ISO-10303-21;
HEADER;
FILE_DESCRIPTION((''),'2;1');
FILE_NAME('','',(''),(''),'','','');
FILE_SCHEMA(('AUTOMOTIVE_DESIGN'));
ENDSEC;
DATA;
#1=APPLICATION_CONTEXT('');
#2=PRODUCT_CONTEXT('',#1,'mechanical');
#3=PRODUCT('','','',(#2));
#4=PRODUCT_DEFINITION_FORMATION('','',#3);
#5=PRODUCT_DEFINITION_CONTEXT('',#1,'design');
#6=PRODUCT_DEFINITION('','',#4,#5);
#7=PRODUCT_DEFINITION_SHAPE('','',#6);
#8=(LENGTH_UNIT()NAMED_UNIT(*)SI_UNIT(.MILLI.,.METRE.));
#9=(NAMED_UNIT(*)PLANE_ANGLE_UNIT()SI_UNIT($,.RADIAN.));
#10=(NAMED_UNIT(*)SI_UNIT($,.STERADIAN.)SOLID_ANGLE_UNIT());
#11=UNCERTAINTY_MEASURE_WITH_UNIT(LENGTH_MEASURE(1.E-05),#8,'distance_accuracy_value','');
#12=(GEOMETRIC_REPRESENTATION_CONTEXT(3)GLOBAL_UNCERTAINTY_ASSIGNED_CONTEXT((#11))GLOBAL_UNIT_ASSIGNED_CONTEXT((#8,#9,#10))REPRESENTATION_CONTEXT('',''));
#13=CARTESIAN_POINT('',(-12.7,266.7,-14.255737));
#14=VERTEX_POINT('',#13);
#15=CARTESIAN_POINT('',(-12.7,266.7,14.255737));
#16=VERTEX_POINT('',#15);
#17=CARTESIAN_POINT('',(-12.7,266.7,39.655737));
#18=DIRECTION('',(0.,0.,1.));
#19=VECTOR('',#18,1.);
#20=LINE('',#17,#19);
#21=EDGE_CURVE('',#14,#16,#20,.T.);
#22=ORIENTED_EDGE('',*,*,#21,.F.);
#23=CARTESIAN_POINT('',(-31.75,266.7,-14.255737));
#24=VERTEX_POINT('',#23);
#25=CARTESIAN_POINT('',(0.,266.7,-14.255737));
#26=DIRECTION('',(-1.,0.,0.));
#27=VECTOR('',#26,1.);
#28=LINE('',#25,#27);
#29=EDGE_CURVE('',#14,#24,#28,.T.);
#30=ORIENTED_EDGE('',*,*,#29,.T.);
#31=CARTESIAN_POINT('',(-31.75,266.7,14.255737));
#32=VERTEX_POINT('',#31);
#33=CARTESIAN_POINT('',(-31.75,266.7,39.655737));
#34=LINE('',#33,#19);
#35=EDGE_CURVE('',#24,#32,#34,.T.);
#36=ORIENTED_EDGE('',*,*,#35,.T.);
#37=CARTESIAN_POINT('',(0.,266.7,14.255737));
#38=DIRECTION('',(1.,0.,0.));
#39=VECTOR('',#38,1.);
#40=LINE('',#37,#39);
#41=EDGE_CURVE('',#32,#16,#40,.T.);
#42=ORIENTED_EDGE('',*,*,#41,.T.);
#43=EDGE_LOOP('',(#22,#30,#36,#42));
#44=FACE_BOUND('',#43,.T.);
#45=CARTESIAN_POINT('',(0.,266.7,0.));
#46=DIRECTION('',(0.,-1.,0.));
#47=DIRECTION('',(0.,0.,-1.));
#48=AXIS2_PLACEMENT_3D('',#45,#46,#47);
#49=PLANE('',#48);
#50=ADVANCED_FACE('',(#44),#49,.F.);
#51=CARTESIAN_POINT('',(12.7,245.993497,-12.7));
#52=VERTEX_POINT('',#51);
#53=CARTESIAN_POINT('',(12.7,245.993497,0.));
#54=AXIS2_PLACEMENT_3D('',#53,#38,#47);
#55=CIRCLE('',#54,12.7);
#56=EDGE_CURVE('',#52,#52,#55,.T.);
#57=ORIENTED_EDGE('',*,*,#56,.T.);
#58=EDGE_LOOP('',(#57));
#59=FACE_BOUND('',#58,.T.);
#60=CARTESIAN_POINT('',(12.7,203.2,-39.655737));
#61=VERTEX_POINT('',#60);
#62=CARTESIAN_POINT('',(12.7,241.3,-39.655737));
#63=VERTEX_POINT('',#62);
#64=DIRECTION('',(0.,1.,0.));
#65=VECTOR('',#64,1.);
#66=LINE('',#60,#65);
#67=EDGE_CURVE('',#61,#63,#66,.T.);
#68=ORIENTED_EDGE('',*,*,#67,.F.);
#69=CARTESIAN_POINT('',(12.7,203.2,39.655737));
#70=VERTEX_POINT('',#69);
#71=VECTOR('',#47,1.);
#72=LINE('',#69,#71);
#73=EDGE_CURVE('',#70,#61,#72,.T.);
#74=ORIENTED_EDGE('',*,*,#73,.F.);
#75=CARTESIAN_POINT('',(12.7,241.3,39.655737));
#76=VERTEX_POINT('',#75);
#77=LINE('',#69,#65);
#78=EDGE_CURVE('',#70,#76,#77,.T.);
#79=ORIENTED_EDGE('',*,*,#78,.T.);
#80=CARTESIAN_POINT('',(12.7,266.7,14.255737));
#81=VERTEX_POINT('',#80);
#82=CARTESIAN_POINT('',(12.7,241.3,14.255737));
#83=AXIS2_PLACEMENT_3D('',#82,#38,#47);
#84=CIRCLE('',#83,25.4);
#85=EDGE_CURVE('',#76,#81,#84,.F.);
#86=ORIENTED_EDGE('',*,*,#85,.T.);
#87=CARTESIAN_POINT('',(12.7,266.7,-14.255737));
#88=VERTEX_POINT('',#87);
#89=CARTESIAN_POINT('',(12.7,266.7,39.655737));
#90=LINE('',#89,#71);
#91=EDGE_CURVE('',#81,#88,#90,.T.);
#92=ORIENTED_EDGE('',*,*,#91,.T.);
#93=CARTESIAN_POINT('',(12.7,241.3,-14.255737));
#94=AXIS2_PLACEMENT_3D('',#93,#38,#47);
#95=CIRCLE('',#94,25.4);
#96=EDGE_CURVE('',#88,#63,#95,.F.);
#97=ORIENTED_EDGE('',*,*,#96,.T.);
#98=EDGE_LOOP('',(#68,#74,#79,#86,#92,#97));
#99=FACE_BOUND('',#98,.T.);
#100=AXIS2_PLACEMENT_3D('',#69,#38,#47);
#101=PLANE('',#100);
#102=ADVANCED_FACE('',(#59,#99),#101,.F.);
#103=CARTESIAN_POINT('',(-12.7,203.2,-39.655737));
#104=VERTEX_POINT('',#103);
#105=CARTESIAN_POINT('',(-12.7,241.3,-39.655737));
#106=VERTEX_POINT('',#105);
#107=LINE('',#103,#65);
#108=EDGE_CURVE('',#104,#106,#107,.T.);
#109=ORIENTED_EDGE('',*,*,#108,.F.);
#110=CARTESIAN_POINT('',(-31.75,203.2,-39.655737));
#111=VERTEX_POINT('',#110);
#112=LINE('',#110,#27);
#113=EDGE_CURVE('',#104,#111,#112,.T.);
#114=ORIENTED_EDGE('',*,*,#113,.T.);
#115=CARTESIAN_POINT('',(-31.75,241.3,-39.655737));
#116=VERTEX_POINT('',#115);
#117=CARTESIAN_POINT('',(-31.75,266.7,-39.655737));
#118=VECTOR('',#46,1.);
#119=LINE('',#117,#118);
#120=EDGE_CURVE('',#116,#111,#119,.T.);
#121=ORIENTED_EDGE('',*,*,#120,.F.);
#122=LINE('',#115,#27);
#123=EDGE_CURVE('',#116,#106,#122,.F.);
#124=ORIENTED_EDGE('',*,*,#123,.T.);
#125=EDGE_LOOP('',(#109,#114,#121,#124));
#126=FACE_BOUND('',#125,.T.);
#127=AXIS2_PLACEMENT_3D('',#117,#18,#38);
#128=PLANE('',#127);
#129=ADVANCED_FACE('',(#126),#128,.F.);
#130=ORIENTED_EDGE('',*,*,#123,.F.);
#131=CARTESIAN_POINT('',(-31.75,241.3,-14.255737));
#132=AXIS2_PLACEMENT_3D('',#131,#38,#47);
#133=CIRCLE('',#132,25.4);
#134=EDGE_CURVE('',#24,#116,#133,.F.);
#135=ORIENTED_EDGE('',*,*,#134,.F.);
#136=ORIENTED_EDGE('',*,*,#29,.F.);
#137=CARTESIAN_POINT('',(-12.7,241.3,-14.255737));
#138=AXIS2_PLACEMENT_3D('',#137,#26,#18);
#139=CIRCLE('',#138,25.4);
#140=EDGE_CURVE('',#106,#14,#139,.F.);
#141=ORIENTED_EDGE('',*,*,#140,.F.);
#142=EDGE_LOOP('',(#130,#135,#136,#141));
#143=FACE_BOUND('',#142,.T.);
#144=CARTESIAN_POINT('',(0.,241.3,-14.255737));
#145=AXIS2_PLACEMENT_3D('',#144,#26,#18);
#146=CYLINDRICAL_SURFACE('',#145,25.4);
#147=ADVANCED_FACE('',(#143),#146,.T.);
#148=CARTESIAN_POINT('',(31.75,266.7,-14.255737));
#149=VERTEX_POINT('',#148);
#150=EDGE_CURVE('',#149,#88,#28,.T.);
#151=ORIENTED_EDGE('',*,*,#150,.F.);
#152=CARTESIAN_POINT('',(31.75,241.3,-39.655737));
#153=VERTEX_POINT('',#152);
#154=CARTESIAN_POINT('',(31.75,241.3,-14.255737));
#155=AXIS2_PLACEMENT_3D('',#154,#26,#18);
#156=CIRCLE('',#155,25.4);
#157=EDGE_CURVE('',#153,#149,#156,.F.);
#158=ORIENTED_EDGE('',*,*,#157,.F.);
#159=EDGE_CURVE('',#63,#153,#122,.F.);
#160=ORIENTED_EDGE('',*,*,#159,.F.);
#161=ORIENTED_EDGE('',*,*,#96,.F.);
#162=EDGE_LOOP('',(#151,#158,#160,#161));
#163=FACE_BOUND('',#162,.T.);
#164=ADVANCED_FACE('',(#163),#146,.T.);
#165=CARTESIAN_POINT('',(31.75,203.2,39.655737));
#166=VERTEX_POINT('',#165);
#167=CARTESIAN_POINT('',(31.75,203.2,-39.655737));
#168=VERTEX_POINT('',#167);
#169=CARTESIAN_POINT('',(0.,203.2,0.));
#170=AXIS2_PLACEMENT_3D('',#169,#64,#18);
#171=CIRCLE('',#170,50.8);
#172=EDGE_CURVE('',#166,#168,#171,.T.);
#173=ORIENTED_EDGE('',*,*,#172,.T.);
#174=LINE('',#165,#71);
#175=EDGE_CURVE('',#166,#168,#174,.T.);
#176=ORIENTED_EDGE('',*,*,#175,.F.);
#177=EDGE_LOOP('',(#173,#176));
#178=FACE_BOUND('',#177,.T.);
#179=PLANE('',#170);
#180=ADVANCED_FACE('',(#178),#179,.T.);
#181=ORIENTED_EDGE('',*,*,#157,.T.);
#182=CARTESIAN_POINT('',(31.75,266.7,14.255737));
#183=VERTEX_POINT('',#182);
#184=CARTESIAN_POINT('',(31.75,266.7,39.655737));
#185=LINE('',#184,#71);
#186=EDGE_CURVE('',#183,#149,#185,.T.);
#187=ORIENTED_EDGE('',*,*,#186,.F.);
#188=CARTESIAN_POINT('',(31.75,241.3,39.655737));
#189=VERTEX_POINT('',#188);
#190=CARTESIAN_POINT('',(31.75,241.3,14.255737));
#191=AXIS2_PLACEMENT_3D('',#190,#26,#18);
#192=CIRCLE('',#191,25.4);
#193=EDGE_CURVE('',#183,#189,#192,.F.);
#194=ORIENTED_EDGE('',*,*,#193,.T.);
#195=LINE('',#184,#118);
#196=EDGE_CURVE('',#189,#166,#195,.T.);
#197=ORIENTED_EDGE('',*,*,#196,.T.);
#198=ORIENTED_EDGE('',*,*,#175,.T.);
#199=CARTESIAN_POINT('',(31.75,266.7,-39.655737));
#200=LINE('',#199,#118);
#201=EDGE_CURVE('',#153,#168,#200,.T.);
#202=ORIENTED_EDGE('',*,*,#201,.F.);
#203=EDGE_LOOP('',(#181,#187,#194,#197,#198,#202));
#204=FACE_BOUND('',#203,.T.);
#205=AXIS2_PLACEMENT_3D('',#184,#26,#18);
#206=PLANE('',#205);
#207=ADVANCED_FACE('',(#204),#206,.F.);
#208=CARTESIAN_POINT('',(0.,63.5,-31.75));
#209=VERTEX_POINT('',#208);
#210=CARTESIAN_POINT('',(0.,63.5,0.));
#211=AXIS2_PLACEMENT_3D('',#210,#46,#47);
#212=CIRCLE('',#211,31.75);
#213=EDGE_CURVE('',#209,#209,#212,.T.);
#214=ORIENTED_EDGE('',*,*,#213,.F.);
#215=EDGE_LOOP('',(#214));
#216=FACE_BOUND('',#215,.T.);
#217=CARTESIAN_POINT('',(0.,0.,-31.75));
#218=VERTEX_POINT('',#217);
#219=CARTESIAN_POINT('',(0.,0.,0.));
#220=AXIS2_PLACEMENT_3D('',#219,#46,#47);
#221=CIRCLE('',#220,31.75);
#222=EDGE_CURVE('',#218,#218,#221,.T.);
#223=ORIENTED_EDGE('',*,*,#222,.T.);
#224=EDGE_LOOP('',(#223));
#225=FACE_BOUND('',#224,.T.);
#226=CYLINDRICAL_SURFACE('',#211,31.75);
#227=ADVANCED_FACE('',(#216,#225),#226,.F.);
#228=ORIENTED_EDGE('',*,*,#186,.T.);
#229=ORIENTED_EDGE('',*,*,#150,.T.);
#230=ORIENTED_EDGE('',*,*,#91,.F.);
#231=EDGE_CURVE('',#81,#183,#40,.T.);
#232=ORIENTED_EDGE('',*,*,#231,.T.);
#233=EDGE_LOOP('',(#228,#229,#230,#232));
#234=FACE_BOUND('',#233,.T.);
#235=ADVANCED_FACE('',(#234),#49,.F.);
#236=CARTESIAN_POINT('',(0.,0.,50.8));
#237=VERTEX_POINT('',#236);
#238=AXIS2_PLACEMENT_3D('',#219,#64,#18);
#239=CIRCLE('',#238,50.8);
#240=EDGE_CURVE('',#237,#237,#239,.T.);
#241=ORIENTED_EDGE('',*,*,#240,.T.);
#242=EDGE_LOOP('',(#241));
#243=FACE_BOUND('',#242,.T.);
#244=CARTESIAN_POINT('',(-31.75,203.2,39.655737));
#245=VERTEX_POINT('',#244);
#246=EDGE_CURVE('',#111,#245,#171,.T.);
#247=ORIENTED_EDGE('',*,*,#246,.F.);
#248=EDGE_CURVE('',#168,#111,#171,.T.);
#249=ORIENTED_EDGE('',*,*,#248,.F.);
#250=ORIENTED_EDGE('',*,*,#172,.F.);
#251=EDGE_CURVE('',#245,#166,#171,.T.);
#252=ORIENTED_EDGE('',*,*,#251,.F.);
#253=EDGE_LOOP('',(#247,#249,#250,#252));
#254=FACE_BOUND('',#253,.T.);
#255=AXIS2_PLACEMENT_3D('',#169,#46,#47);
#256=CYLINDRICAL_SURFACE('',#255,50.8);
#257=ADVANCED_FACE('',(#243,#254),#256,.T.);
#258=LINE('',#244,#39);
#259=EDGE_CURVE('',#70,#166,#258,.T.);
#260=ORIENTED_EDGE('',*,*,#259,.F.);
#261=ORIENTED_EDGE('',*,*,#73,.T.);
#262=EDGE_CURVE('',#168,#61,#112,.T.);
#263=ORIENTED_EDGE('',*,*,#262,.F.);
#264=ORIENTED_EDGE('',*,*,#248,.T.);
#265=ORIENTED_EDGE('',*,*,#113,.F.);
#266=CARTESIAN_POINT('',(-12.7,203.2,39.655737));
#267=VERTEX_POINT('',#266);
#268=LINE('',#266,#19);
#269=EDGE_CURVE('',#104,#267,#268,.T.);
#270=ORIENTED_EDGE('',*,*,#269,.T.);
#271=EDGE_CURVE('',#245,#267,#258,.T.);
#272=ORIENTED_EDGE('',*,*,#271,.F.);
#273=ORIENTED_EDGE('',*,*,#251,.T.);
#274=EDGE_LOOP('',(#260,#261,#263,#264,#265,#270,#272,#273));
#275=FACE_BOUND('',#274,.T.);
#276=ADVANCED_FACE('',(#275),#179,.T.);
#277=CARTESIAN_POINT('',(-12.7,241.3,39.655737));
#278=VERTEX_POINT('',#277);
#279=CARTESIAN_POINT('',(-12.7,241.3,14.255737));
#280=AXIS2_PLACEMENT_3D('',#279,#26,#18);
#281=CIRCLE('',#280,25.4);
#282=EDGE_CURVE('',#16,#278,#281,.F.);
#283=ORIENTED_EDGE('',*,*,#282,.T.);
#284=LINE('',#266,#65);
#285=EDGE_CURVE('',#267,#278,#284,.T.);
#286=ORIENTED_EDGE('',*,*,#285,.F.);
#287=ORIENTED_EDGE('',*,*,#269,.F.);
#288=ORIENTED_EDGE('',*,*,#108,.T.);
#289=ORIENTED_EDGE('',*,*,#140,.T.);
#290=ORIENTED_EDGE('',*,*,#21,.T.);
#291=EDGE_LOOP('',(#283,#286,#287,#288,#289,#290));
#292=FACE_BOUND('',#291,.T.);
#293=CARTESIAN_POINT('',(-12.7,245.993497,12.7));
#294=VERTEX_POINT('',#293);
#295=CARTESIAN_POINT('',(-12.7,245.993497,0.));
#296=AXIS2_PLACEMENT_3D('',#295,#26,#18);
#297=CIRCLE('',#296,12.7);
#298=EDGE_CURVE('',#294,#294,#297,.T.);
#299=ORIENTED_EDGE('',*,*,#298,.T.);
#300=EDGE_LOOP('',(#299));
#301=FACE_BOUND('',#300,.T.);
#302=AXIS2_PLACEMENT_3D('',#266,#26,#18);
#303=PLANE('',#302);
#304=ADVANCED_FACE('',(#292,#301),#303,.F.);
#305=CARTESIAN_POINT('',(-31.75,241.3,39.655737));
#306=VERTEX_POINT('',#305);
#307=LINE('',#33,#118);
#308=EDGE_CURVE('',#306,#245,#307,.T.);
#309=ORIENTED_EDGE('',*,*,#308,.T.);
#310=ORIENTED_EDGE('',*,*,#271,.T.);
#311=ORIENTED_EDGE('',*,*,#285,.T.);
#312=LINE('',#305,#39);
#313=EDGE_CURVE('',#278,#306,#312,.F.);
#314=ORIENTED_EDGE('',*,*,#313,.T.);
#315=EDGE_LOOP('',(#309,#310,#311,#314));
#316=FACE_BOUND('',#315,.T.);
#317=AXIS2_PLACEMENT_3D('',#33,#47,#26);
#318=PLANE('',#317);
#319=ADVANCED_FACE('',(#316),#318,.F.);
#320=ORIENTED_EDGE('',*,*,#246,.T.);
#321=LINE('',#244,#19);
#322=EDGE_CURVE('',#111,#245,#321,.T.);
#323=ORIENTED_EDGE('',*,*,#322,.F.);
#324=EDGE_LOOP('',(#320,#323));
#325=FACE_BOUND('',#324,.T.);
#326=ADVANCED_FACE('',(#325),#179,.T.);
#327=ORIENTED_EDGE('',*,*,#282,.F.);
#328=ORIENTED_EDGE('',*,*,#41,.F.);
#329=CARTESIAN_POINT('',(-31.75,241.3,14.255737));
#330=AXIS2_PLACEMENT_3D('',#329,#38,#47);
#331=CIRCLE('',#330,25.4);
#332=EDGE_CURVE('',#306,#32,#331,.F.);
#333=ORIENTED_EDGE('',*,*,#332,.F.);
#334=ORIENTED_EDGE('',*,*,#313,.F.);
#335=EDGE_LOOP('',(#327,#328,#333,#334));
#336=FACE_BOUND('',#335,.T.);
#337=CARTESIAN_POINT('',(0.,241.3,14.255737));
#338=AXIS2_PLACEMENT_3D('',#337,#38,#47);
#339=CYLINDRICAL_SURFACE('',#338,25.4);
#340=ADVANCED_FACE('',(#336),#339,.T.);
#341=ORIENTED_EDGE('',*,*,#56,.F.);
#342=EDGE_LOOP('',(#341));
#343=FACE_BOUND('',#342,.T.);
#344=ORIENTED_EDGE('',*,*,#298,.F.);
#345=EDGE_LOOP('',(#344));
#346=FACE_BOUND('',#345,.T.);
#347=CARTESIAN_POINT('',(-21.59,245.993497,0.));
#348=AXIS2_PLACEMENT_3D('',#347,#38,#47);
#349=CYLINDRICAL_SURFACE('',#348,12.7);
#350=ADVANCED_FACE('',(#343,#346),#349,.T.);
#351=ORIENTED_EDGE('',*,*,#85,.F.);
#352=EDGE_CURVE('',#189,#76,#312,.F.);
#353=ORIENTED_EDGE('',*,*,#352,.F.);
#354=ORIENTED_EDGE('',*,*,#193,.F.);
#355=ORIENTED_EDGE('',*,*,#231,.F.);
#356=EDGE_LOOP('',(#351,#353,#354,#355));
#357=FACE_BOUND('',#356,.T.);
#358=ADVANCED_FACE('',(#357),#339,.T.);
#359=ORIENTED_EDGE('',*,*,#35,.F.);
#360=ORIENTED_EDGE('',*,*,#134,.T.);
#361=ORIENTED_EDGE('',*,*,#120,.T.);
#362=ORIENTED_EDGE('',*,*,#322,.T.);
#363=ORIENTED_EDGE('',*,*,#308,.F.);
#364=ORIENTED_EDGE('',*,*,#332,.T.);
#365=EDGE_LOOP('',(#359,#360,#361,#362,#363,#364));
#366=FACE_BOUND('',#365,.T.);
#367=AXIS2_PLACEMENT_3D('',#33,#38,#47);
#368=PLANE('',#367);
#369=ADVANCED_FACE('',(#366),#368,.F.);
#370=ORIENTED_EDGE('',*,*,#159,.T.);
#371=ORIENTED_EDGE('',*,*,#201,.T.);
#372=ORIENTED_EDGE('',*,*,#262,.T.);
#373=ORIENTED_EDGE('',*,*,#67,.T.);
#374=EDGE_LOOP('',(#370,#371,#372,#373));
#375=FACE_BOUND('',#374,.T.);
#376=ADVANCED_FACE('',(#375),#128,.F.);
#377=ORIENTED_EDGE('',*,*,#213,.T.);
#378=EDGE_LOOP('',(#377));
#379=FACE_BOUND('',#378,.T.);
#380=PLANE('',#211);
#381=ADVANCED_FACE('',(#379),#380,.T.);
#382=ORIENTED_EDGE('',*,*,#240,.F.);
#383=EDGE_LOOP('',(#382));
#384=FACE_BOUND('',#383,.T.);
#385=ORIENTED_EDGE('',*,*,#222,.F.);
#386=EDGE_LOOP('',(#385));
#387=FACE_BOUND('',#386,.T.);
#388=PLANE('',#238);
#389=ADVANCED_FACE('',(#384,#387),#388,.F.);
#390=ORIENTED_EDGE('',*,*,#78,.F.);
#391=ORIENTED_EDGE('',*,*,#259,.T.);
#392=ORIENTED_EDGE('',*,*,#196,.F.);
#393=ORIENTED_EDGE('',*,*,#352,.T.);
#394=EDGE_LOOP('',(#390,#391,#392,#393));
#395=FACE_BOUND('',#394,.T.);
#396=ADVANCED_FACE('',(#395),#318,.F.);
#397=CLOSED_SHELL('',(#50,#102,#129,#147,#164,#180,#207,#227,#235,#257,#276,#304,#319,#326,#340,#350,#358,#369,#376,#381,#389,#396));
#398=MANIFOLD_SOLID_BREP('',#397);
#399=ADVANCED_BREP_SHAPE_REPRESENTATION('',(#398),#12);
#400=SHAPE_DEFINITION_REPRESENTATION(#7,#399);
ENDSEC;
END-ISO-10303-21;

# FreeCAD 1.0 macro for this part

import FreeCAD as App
import Part
import Sketcher

V = App.Vector
Q = App.Units.Quantity


def edges_at(feature, points):
    """Names of the edges that pass closest to the given points."""
    edges = feature.Shape.Edges
    near = lambda p: min(range(len(edges)), key=lambda i: edges[i].distToShape(Part.Vertex(*p))[0])
    return sorted({f"Edge{near(p) + 1}" for p in points})

doc = App.newDocument("Part")
body = doc.addObject("PartDesign::Body", "Body")

# Sketch on XZ plane
sketch1 = body.newObject("Sketcher::SketchObject", "Sketch")
sketch1.AttachmentSupport = (doc.getObject("XZ_Plane"), [""])
sketch1.MapMode = "FlatFace"
sketch1.addGeometry(Part.Circle(V(0, 0, 0), V(0, 0, 1), 50.8), False)
sketch1.addConstraint(Sketcher.Constraint("Coincident", 0, 3, -1, 1))
sketch1.addConstraint(Sketcher.Constraint("Diameter", 0, Q("4 in")))
pad1 = body.newObject("PartDesign::Pad", "Pad")
pad1.Profile = sketch1
pad1.Length = Q("8 in")
pad1.Reversed = True

# Sketch on XZ plane
sketch2 = body.newObject("Sketcher::SketchObject", "Sketch001")
sketch2.AttachmentSupport = (doc.getObject("XZ_Plane"), [""])
sketch2.MapMode = "FlatFace"
sketch2.AttachmentOffset = App.Placement(V(0, 0, -8 * 25.4), App.Rotation())
sketch2.addGeometry(Part.LineSegment(V(-31.75, -39.655737, 0), V(-31.75, 39.655737, 0)), False)
sketch2.addGeometry(Part.LineSegment(V(-31.75, 39.655737, 0), V(31.75, 39.655737, 0)), False)
sketch2.addGeometry(Part.LineSegment(V(31.75, 39.655737, 0), V(31.75, -39.655737, 0)), False)
sketch2.addGeometry(Part.LineSegment(V(31.75, -39.655737, 0), V(-31.75, -39.655737, 0)), False)
sketch2.addConstraint(Sketcher.Constraint("Coincident", 0, 2, 1, 1))
sketch2.addConstraint(Sketcher.Constraint("Coincident", 1, 2, 2, 1))
sketch2.addConstraint(Sketcher.Constraint("Coincident", 2, 2, 3, 1))
sketch2.addConstraint(Sketcher.Constraint("Coincident", 3, 2, 0, 1))
sketch2.addConstraint(Sketcher.Constraint("Vertical", 0))
sketch2.addConstraint(Sketcher.Constraint("Horizontal", 1))
sketch2.addConstraint(Sketcher.Constraint("Vertical", 2))
sketch2.addConstraint(Sketcher.Constraint("Horizontal", 3))
sketch2.addConstraint(Sketcher.Constraint("Symmetric", 0, 2, 2, 2, -1, 1))
sketch2.addConstraint(Sketcher.Constraint("DistanceX", 1, 1, 1, 2, Q("2.5 in")))
sketch2.addConstraint(Sketcher.Constraint("DistanceY", 0, 1, 0, 2, Q("79.311475 mm")))
pad2 = body.newObject("PartDesign::Pad", "Pad001")
pad2.Profile = sketch2
pad2.Length = Q("2.5 in")
pad2.Reversed = True

# Sketch on XZ plane
sketch3 = body.newObject("Sketcher::SketchObject", "Sketch002")
sketch3.AttachmentSupport = (doc.getObject("XZ_Plane"), [""])
sketch3.MapMode = "FlatFace"
sketch3.AttachmentOffset = App.Placement(V(0, 0, -10.5 * 25.4), App.Rotation())
sketch3.addGeometry(Part.LineSegment(V(-12.7, -39.655737, 0), V(-12.7, 39.655737, 0)), False)
sketch3.addGeometry(Part.LineSegment(V(-12.7, 39.655737, 0), V(12.7, 39.655737, 0)), False)
sketch3.addGeometry(Part.LineSegment(V(12.7, 39.655737, 0), V(12.7, -39.655737, 0)), False)
sketch3.addGeometry(Part.LineSegment(V(12.7, -39.655737, 0), V(-12.7, -39.655737, 0)), False)
sketch3.addConstraint(Sketcher.Constraint("Coincident", 0, 2, 1, 1))
sketch3.addConstraint(Sketcher.Constraint("Coincident", 1, 2, 2, 1))
sketch3.addConstraint(Sketcher.Constraint("Coincident", 2, 2, 3, 1))
sketch3.addConstraint(Sketcher.Constraint("Coincident", 3, 2, 0, 1))
sketch3.addConstraint(Sketcher.Constraint("Vertical", 0))
sketch3.addConstraint(Sketcher.Constraint("Horizontal", 1))
sketch3.addConstraint(Sketcher.Constraint("Vertical", 2))
sketch3.addConstraint(Sketcher.Constraint("Horizontal", 3))
sketch3.addConstraint(Sketcher.Constraint("Symmetric", 0, 2, 2, 2, -1, 1))
sketch3.addConstraint(Sketcher.Constraint("DistanceX", 1, 1, 1, 2, Q("1 in")))
sketch3.addConstraint(Sketcher.Constraint("DistanceY", 0, 1, 0, 2, Q("79.311475 mm")))
pocket1 = body.newObject("PartDesign::Pocket", "Pocket")
pocket1.Profile = sketch3
pocket1.Length = Q("2.5 in")
pocket1.Reversed = True
doc.recompute()

fillet = body.newObject("PartDesign::Fillet", "Fillet")
fillet.Base = (pocket1, edges_at(pocket1, [
    (22.225, 266.7, -39.656),
    (-22.225, 266.7, 39.656),
    (-22.225, 266.7, -39.656),
    (22.225, 266.7, 39.656),
]))
fillet.Radius = Q("1 in")

# Sketch on XZ plane
sketch4 = body.newObject("Sketcher::SketchObject", "Sketch003")
sketch4.AttachmentSupport = (doc.getObject("XZ_Plane"), [""])
sketch4.MapMode = "FlatFace"
sketch4.addGeometry(Part.Circle(V(0, 0, 0), V(0, 0, 1), 31.75), False)
sketch4.addConstraint(Sketcher.Constraint("Coincident", 0, 3, -1, 1))
sketch4.addConstraint(Sketcher.Constraint("Diameter", 0, Q("2.5 in")))
pocket2 = body.newObject("PartDesign::Pocket", "Pocket001")
pocket2.Profile = sketch4
pocket2.Length = Q("2.5 in")

# Sketch on YZ plane
sketch5 = body.newObject("Sketcher::SketchObject", "Sketch004")
sketch5.AttachmentSupport = (doc.getObject("YZ_Plane"), [""])
sketch5.MapMode = "FlatFace"
sketch5.AttachmentOffset = App.Placement(V(0, 0, 1.25 * 25.4), App.Rotation())
sketch5.addGeometry(Part.Circle(V(245.993497, 0, 0), V(0, 0, 1), 12.7), False)
sketch5.addConstraint(Sketcher.Constraint("PointOnObject", 0, 3, -1))
sketch5.addConstraint(Sketcher.Constraint("Diameter", 0, Q("1 in")))
sketch5.addConstraint(Sketcher.Constraint("DistanceX", -1, 1, 0, 3, Q("245.993497 mm")))
pad3 = body.newObject("PartDesign::Pad", "Pad002")
pad3.Profile = sketch5
pad3.Length = Q("2.1 in")
pad3.Reversed = True

doc.recompute()
